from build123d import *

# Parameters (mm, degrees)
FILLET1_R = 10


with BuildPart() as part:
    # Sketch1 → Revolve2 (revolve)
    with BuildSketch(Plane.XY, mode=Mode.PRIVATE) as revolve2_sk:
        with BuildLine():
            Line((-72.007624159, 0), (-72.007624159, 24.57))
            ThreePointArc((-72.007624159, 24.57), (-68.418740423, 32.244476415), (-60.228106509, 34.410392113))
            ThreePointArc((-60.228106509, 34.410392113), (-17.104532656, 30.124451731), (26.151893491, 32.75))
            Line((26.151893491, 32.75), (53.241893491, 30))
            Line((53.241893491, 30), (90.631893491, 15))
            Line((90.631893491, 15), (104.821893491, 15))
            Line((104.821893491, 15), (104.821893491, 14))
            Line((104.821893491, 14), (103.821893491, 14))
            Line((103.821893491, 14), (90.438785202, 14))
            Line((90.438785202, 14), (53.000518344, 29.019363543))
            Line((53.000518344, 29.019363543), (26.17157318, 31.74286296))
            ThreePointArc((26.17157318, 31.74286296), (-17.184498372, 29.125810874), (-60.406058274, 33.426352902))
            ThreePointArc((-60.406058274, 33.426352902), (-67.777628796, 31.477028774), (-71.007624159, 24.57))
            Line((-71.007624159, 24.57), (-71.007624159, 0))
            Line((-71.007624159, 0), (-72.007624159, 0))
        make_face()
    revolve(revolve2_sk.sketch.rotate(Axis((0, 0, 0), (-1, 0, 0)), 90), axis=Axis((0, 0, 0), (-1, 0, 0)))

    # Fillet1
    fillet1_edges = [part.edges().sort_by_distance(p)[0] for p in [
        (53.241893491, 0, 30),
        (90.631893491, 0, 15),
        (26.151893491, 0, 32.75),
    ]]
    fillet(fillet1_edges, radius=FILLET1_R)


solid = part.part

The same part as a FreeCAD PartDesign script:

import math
import FreeCAD as App
import Part
import Sketcher

V = App.Vector


def edges_at(feature, points):
    """Names of the edges that pass closest to the given points."""
    edges = feature.Shape.Edges
    near = lambda p: min(range(len(edges)), key=lambda i: edges[i].distToShape(Part.Vertex(*p))[0])
    return sorted({f"Edge{near(p) + 1}" for p in points})

doc = App.newDocument("Part")
body = doc.addObject("PartDesign::Body", "Body")

# Sketch on XY plane
sketch1 = body.newObject("Sketcher::SketchObject", "Sketch")
sketch1.AttachmentSupport = (doc.getObject("XY_Plane"), [""])
sketch1.MapMode = "FlatFace"
sketch1.addGeometry(Part.LineSegment(V(-72, 24.6, 0), V(-72, 0, 0)), False)
sketch1.addGeometry(Part.LineSegment(V(-72, 0, 0), V(-71, 0, 0)), False)
sketch1.addGeometry(Part.LineSegment(V(-71, 0, 0), V(-71, 24.6, 0)), False)
sketch1.addGeometry(Part.ArcOfCircle(Part.Circle(V(-62, 24.6, 0), V(0, 0, 1), 9), math.radians(80), math.radians(180)), False)
sketch1.addGeometry(Part.ArcOfCircle(Part.Circle(V(-11.9, 301.7, 0), V(0, 0, 1), 272.7), math.radians(-100.25), math.radians(-81.98)), False)
sketch1.addGeometry(Part.LineSegment(V(26.2, 31.7, 0), V(53, 29, 0)), False)
sketch1.addGeometry(Part.LineSegment(V(53, 29, 0), V(90.4, 14, 0)), False)
sketch1.addGeometry(Part.LineSegment(V(90.4, 14, 0), V(104.8, 14, 0)), False)
sketch1.addGeometry(Part.LineSegment(V(104.8, 14, 0), V(104.8, 15, 0)), False)
sketch1.addGeometry(Part.LineSegment(V(104.8, 15, 0), V(90.6, 15, 0)), False)
sketch1.addGeometry(Part.LineSegment(V(90.6, 15, 0), V(53.2, 30, 0)), False)
sketch1.addGeometry(Part.LineSegment(V(53.2, 30, 0), V(26.2, 32.8, 0)), False)
sketch1.addGeometry(Part.ArcOfCircle(Part.Circle(V(-11.9, 301.7, 0), V(0, 0, 1), 271.7), math.radians(-100.25), math.radians(-81.95)), False)
sketch1.addGeometry(Part.ArcOfCircle(Part.Circle(V(-62, 24.6, 0), V(0, 0, 1), 10), math.radians(80), math.radians(180)), False)
sketch1.addConstraint(Sketcher.Constraint("Coincident", 0, 2, 1, 1))
sketch1.addConstraint(Sketcher.Constraint("Coincident", 1, 2, 2, 1))
sketch1.addConstraint(Sketcher.Constraint("Tangent", 2, 2, 3, 2))
sketch1.addConstraint(Sketcher.Constraint("Tangent", 3, 1, 4, 1))
sketch1.addConstraint(Sketcher.Constraint("Coincident", 4, 2, 5, 1))
sketch1.addConstraint(Sketcher.Constraint("Coincident", 5, 2, 6, 1))
sketch1.addConstraint(Sketcher.Constraint("Coincident", 6, 2, 7, 1))
sketch1.addConstraint(Sketcher.Constraint("Coincident", 7, 2, 8, 1))
sketch1.addConstraint(Sketcher.Constraint("Coincident", 8, 2, 9, 1))
sketch1.addConstraint(Sketcher.Constraint("Coincident", 9, 2, 10, 1))
sketch1.addConstraint(Sketcher.Constraint("Coincident", 10, 2, 11, 1))
sketch1.addConstraint(Sketcher.Constraint("Coincident", 11, 2, 12, 2))
sketch1.addConstraint(Sketcher.Constraint("Tangent", 12, 1, 13, 1))
sketch1.addConstraint(Sketcher.Constraint("Tangent", 13, 2, 0, 1))
sketch1.addConstraint(Sketcher.Constraint("Vertical", 0))
sketch1.addConstraint(Sketcher.Constraint("Horizontal", 1))
sketch1.addConstraint(Sketcher.Constraint("Vertical", 2))
sketch1.addConstraint(Sketcher.Constraint("Horizontal", 7))
sketch1.addConstraint(Sketcher.Constraint("Vertical", 8))
sketch1.addConstraint(Sketcher.Constraint("Horizontal", 9))
sketch1.addConstraint(Sketcher.Constraint("Coincident", 12, 3, 4, 3))
sketch1.addConstraint(Sketcher.Constraint("Coincident", 13, 3, 3, 3))
sketch1.addConstraint(Sketcher.Constraint("PointOnObject", 0, 2, -1))
sketch1.addConstraint(Sketcher.Constraint("Parallel", 6, 10))
sketch1.addConstraint(Sketcher.Constraint("Parallel", 5, 11))
sketch1.addConstraint(Sketcher.Constraint("Equal", 1, 8))
sketch1.addConstraint(Sketcher.Constraint("Radius", 3, 9.0))
sketch1.addConstraint(Sketcher.Constraint("Radius", 13, 10.0))
sketch1.addConstraint(Sketcher.Constraint("DistanceY", -1, 1, 6, 2, 14.0))
sketch1.addConstraint(Sketcher.Constraint("DistanceY", -1, 1, 10, 2, 30.0))
sketch1.addConstraint(Sketcher.Constraint("DistanceX", 9, 2, 9, 1, 14.19))
sketch1.addConstraint(Sketcher.Constraint("DistanceY", 0, 2, 0, 1, 24.57))
sketch1.addConstraint(Sketcher.Constraint("DistanceY", -1, 1, 11, 2, 32.75))
sketch1.addConstraint(Sketcher.Constraint("Radius", 4, 272.673029))
sketch1.addConstraint(Sketcher.Constraint("DistanceX", 10, 2, 9, 2, 37.39))
sketch1.addConstraint(Sketcher.Constraint("DistanceX", 11, 2, 10, 2, 27.09))
sketch1.addConstraint(Sketcher.Constraint("DistanceX", 7, 1, 7, 2, 14.383108))
sketch1.addConstraint(Sketcher.Constraint("DistanceY", 5, 2, 4, 2, 2.723499))
sketch1.addConstraint(Sketcher.Constraint("DistanceX", 4, 3, -1, 1, 11.883412))
sketch1.addConstraint(Sketcher.Constraint("DistanceX", 3, 1, -1, 1, 60.406058))
revolution = body.newObject("PartDesign::Revolution", "Revolution")
revolution.Profile = sketch1
revolution.ReferenceAxis = (sketch1, ["H_Axis"])
revolution.Angle = 360
doc.recompute()

fillet = body.newObject("PartDesign::Fillet", "Fillet")
fillet.Base = (revolution, edges_at(revolution, [(53.242, 0, 30), (90.632, 0, 15), (26.152, 0, 32.75)]))
fillet.Radius = 10

doc.recompute()
